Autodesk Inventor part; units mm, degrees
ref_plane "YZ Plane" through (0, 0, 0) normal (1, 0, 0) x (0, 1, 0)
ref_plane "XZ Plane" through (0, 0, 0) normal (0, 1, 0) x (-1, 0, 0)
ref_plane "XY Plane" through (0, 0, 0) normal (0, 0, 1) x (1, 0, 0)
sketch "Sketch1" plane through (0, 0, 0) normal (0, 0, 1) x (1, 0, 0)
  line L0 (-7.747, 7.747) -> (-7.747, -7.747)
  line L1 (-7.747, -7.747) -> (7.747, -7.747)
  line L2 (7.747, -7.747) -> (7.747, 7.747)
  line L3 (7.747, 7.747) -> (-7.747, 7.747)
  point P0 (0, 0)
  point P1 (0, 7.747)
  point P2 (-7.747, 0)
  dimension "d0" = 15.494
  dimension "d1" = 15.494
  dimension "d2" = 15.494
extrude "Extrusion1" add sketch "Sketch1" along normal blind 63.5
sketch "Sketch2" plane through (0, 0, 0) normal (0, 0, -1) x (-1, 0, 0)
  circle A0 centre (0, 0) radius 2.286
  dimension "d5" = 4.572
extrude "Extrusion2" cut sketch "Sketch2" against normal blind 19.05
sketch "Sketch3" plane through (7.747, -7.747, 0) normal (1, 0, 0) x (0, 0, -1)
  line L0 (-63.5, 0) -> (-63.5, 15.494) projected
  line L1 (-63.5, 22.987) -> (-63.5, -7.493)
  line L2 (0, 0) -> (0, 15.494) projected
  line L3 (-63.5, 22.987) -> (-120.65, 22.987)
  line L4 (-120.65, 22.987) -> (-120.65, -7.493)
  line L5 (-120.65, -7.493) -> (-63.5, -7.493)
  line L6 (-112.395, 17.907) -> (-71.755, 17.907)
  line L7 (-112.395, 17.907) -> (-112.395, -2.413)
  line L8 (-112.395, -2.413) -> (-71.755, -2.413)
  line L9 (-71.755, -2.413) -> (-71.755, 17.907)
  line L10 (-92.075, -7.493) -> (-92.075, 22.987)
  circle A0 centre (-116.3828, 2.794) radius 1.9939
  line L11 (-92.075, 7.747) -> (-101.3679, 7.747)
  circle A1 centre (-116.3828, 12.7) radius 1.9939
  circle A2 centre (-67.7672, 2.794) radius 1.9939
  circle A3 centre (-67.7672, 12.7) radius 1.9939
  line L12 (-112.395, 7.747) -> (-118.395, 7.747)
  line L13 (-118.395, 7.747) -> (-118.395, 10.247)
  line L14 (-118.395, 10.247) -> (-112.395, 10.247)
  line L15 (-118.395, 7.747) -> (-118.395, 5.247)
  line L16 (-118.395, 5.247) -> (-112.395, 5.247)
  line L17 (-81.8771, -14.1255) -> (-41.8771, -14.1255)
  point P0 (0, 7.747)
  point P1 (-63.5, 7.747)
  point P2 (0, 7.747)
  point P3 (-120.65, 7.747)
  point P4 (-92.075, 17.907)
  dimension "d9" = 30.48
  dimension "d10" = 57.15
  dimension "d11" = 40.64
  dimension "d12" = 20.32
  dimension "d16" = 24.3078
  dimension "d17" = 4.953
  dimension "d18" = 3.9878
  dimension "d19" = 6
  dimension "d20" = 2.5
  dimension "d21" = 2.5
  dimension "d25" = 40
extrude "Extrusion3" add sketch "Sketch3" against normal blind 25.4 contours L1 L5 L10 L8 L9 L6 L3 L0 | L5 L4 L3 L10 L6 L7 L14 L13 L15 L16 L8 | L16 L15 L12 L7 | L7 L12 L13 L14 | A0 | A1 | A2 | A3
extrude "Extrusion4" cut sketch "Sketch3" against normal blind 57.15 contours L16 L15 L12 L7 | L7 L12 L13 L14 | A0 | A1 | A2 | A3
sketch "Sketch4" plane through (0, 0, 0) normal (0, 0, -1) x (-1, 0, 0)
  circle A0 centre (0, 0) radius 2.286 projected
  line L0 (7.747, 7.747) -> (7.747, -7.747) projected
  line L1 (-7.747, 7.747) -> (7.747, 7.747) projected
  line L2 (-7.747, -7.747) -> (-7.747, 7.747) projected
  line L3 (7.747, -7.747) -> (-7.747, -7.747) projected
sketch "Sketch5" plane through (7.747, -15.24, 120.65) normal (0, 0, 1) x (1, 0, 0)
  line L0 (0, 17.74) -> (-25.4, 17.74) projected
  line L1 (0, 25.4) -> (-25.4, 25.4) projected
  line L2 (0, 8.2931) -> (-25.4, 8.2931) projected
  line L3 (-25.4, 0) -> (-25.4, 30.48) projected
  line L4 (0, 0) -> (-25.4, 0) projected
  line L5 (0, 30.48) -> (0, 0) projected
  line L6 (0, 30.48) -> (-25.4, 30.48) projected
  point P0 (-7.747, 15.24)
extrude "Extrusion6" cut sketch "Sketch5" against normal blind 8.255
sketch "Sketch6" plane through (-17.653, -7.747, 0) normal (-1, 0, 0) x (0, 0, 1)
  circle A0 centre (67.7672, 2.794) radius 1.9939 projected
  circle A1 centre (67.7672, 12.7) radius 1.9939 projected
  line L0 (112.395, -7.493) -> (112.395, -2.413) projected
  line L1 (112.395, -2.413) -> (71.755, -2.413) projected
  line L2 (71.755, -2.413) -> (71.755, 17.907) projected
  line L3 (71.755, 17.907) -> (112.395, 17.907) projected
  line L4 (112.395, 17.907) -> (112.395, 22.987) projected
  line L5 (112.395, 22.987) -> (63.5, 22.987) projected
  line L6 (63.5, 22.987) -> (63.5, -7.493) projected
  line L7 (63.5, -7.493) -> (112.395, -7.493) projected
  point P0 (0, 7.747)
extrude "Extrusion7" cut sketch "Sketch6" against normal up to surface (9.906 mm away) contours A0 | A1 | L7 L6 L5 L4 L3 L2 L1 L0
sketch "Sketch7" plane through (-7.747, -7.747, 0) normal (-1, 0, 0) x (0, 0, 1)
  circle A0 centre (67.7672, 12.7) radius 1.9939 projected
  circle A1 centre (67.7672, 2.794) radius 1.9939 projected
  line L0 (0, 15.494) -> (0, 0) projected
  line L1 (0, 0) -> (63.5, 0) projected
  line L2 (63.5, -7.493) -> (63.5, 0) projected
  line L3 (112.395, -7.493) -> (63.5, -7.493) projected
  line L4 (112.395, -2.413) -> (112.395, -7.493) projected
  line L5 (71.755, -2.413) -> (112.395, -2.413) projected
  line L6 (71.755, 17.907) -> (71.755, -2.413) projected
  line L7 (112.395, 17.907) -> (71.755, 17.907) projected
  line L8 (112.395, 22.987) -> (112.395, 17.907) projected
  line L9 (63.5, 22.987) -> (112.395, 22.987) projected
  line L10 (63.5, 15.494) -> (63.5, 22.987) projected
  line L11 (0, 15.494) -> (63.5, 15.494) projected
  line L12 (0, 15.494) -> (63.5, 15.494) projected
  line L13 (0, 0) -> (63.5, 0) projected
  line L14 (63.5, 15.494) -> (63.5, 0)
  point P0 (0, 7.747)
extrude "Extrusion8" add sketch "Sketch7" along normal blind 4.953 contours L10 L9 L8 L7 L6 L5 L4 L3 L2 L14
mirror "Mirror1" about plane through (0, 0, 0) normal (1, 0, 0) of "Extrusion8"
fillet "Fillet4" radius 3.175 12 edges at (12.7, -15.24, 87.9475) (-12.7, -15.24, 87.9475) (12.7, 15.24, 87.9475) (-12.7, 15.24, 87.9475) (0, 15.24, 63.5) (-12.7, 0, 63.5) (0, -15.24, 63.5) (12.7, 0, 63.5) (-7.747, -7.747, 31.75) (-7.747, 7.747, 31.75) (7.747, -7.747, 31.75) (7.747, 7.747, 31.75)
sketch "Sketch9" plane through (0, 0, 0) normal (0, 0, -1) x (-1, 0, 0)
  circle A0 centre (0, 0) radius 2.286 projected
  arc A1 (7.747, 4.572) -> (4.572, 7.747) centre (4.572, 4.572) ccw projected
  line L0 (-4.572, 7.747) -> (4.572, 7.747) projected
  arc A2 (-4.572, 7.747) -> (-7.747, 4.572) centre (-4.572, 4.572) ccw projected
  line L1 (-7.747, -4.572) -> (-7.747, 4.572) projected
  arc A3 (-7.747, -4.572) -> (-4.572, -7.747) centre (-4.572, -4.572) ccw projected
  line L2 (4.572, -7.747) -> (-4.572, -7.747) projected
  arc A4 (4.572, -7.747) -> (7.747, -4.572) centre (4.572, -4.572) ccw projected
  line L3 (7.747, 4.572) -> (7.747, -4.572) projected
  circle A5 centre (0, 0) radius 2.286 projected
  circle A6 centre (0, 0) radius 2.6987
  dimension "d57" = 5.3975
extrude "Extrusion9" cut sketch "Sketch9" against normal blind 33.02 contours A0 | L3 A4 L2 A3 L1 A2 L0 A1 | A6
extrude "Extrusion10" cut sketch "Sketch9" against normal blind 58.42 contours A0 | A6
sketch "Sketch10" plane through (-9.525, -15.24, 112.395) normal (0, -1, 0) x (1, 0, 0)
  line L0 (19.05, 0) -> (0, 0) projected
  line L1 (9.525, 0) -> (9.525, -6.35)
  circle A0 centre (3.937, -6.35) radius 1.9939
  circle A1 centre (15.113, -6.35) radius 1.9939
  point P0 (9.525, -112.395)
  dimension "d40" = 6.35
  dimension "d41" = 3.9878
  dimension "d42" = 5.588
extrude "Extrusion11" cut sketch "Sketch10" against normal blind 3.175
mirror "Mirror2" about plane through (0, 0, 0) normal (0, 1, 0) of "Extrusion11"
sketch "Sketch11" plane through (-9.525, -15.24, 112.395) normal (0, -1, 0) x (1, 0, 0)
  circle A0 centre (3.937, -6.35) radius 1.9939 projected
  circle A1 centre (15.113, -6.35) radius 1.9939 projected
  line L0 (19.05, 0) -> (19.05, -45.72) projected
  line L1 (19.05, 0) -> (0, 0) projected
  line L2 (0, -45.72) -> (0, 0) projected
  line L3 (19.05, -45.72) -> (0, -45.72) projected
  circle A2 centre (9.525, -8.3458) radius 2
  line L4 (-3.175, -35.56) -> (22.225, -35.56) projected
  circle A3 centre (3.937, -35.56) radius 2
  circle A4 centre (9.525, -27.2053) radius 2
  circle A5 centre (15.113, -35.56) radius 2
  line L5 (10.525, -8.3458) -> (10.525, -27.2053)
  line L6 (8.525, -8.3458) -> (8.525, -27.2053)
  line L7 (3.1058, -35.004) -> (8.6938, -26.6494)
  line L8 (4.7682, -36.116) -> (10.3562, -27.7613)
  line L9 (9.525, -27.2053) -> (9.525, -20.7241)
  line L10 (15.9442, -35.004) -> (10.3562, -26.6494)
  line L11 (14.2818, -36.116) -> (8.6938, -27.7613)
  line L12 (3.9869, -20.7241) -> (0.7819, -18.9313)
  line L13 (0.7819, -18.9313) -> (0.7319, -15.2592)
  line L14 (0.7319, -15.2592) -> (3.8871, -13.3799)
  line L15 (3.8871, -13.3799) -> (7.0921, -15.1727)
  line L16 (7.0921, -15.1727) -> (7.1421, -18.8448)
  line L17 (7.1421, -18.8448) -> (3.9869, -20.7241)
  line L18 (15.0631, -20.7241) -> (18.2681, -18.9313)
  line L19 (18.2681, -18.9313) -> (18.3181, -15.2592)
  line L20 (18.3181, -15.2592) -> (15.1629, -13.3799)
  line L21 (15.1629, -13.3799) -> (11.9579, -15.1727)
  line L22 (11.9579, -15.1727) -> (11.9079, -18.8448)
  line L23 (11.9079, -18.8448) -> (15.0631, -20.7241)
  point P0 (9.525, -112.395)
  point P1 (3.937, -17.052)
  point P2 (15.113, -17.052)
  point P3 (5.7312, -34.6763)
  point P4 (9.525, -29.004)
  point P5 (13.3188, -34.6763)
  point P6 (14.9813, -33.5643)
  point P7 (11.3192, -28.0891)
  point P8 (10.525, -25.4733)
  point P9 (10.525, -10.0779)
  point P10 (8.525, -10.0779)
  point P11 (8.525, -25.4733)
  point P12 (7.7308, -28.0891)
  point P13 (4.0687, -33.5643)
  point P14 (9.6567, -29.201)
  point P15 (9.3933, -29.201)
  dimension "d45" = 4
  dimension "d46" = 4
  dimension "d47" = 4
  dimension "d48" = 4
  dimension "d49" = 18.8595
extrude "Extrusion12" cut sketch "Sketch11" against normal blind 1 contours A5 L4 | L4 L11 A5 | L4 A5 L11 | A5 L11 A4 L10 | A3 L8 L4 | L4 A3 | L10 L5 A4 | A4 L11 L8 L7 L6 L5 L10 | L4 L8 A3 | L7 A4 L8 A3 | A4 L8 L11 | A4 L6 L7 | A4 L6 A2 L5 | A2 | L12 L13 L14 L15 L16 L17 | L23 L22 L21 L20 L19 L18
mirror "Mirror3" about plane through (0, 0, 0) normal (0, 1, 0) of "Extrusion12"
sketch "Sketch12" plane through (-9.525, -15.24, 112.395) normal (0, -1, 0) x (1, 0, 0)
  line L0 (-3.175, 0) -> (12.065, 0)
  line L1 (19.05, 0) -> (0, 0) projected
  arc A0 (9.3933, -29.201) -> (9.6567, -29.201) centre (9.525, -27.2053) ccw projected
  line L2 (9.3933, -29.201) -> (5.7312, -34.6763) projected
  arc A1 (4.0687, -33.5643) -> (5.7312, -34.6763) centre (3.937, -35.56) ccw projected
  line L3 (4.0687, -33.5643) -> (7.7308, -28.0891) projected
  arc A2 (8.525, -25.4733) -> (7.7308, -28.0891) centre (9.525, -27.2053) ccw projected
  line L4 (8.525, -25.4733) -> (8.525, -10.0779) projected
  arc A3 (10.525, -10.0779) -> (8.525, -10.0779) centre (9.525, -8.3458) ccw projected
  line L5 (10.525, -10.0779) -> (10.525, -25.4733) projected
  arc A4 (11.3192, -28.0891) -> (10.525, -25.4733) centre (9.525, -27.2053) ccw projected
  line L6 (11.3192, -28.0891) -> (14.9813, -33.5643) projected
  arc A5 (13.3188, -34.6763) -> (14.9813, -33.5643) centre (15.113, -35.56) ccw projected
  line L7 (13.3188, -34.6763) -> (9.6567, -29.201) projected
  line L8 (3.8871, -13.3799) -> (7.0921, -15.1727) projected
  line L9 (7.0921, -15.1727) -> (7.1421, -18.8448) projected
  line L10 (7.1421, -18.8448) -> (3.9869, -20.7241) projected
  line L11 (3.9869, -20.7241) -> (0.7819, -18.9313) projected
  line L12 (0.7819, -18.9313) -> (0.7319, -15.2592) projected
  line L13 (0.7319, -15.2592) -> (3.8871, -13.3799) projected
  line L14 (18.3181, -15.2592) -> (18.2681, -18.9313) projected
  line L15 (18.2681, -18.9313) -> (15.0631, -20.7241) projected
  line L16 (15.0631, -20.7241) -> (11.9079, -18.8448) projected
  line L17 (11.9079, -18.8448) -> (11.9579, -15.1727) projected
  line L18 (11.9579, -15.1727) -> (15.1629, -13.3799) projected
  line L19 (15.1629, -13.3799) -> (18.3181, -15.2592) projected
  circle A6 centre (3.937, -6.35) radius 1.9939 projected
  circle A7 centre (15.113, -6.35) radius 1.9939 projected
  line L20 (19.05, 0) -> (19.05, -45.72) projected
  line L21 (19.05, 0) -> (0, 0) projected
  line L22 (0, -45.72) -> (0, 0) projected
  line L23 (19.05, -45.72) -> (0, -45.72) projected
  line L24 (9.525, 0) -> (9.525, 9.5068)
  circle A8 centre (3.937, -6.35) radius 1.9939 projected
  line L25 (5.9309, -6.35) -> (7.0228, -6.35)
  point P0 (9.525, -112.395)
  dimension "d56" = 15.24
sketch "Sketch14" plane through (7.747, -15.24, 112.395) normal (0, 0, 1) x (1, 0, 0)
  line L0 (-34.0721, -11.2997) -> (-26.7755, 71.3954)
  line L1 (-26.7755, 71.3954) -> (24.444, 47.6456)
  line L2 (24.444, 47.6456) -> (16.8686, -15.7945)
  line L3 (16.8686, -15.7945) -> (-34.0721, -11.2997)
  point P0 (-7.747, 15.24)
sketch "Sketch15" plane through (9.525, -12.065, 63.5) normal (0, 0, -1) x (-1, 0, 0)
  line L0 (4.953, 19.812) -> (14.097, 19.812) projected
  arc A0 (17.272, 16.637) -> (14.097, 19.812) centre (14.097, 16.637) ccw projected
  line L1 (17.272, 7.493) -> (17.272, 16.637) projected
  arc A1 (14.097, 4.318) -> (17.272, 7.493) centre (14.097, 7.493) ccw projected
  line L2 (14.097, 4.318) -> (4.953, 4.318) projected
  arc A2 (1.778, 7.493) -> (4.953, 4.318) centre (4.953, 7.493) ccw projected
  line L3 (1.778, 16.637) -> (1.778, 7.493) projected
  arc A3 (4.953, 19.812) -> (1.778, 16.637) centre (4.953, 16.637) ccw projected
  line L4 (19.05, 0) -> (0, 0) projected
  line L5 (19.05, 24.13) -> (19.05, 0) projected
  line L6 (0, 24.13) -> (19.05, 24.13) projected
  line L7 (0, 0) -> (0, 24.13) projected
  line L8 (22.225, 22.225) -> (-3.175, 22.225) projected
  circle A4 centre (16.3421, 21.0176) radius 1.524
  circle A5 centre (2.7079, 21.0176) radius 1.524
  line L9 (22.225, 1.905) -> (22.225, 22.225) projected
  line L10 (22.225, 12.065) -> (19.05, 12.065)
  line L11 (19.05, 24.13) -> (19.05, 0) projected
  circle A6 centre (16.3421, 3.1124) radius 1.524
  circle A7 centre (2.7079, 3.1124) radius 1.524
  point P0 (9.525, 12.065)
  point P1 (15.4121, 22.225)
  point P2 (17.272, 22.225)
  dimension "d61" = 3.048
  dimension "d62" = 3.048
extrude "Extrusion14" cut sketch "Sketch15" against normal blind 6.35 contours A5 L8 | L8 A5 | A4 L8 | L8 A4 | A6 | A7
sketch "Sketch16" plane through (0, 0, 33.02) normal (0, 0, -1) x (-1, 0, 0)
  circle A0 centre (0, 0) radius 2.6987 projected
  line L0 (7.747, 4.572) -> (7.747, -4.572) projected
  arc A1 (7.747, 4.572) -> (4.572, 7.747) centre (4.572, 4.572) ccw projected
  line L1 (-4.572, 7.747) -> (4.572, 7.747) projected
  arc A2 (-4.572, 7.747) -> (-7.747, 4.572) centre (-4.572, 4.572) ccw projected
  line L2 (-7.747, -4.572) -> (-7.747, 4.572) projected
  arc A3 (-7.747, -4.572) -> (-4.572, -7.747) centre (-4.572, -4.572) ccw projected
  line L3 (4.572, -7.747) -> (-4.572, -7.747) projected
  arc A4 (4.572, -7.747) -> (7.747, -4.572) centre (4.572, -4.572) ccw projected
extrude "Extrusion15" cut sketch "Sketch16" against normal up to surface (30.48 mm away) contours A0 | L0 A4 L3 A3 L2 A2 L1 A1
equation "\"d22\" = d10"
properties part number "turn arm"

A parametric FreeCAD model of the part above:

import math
import FreeCAD as App
import Part
import Sketcher
Q = App.Units.Quantity


def edges_at(feature, points):
    """Names of the edges that pass closest to the given points."""
    edges = feature.Shape.Edges
    near = lambda p: min(range(len(edges)), key=lambda i: edges[i].distToShape(Part.Vertex(*p))[0])
    return sorted({f"Edge{near(p) + 1}" for p in points})

doc = App.newDocument("Part")
body = doc.addObject("PartDesign::Body", "Body")

sketch1 = body.newObject("Sketcher::SketchObject", "Sketch")
sketch1.AttachmentSupport = (doc.getObject("XY_Plane"), [""])
sketch1.MapMode = "FlatFace"
sketch1.addGeometry(Part.LineSegment(App.Vector(7.747, 7.747, 0), App.Vector(-7.747, 7.747, 0)), False)
sketch1.addGeometry(Part.LineSegment(App.Vector(-7.747, 7.747, 0), App.Vector(-7.747, -7.747, 0)), False)
sketch1.addGeometry(Part.LineSegment(App.Vector(-7.747, -7.747, 0), App.Vector(7.747, -7.747, 0)), False)
sketch1.addGeometry(Part.LineSegment(App.Vector(7.747, -7.747, 0), App.Vector(7.747, 7.747, 0)), False)
sketch1.addConstraint(Sketcher.Constraint("Coincident", 0, 2, 1, 1))
sketch1.addConstraint(Sketcher.Constraint("Coincident", 1, 2, 2, 1))
sketch1.addConstraint(Sketcher.Constraint("Coincident", 2, 2, 3, 1))
sketch1.addConstraint(Sketcher.Constraint("Coincident", 3, 2, 0, 1))
sketch1.addConstraint(Sketcher.Constraint("Horizontal", 0))
sketch1.addConstraint(Sketcher.Constraint("Vertical", 1))
sketch1.addConstraint(Sketcher.Constraint("Horizontal", 2))
sketch1.addConstraint(Sketcher.Constraint("Vertical", 3))
sketch1.addConstraint(Sketcher.Constraint("Symmetric", 0, 2, 2, 2, -1, 1))
sketch1.addConstraint(Sketcher.Constraint("Equal", 2, 1))
sketch1.addConstraint(Sketcher.Constraint("DistanceX", 0, 2, 0, 1, Q("0.61 in")))
pad1 = body.newObject("PartDesign::Pad", "Pad")
pad1.Profile = sketch1
pad1.Length = Q("2.5 in")

sketch2 = body.newObject("Sketcher::SketchObject", "Sketch001")
sketch2.AttachmentSupport = (doc.getObject("XY_Plane"), [""])
sketch2.MapMode = "FlatFace"
sketch2.addGeometry(Part.Circle(App.Vector(0, 0, 0), App.Vector(0, 0, 1), 2.286), False)
sketch2.addConstraint(Sketcher.Constraint("Coincident", 0, 3, -1, 1))
sketch2.addConstraint(Sketcher.Constraint("Diameter", 0, Q("0.18 in")))
pocket1 = body.newObject("PartDesign::Pocket", "Pocket")
pocket1.Profile = sketch2
pocket1.Length = Q("0.75 in")
pocket1.Reversed = True

sketch3 = body.newObject("Sketcher::SketchObject", "Sketch002")
sketch3.AttachmentSupport = (doc.getObject("YZ_Plane"), [""])
sketch3.MapMode = "FlatFace"
sketch3.AttachmentOffset = App.Placement(App.Vector(0, 0, 0.305 * 25.4), App.Rotation())
sketch3.addGeometry(Part.LineSegment(App.Vector(-15.24, 63.5, 0), App.Vector(15.24, 63.5, 0)), False)
sketch3.addGeometry(Part.LineSegment(App.Vector(15.24, 63.5, 0), App.Vector(15.24, 120.65, 0)), False)
sketch3.addGeometry(Part.LineSegment(App.Vector(15.24, 120.65, 0), App.Vector(-15.24, 120.65, 0)), False)
sketch3.addGeometry(Part.LineSegment(App.Vector(-15.24, 120.65, 0), App.Vector(-15.24, 63.5, 0)), False)
sketch3.addGeometry(Part.LineSegment(App.Vector(-10.16, 71.755, 0), App.Vector(-10.16, 112.395, 0)), False)
sketch3.addGeometry(Part.LineSegment(App.Vector(-10.16, 112.395, 0), App.Vector(10.16, 112.395, 0)), False)
sketch3.addGeometry(Part.LineSegment(App.Vector(10.16, 112.395, 0), App.Vector(10.16, 71.755, 0)), False)
sketch3.addGeometry(Part.LineSegment(App.Vector(10.16, 71.755, 0), App.Vector(-10.16, 71.755, 0)), False)
sketch3.addConstraint(Sketcher.Constraint("Coincident", 0, 2, 1, 1))
sketch3.addConstraint(Sketcher.Constraint("Coincident", 1, 2, 2, 1))
sketch3.addConstraint(Sketcher.Constraint("Coincident", 2, 2, 3, 1))
sketch3.addConstraint(Sketcher.Constraint("Coincident", 3, 2, 0, 1))
sketch3.addConstraint(Sketcher.Constraint("Coincident", 4, 2, 5, 1))
sketch3.addConstraint(Sketcher.Constraint("Coincident", 5, 2, 6, 1))
sketch3.addConstraint(Sketcher.Constraint("Coincident", 6, 2, 7, 1))
sketch3.addConstraint(Sketcher.Constraint("Coincident", 7, 2, 4, 1))
sketch3.addConstraint(Sketcher.Constraint("Horizontal", 0))
sketch3.addConstraint(Sketcher.Constraint("Vertical", 1))
sketch3.addConstraint(Sketcher.Constraint("Horizontal", 2))
sketch3.addConstraint(Sketcher.Constraint("Vertical", 3))
sketch3.addConstraint(Sketcher.Constraint("Vertical", 4))
sketch3.addConstraint(Sketcher.Constraint("Horizontal", 5))
sketch3.addConstraint(Sketcher.Constraint("Vertical", 6))
sketch3.addConstraint(Sketcher.Constraint("Horizontal", 7))
sketch3.addConstraint(Sketcher.Constraint("DistanceX", 0, 1, 0, 2, Q("1.2 in")))
sketch3.addConstraint(Sketcher.Constraint("DistanceX", 5, 1, 5, 2, Q("0.8 in")))
sketch3.addConstraint(Sketcher.Constraint("DistanceY", 4, 1, 4, 2, Q("1.6 in")))
sketch3.addConstraint(Sketcher.Constraint("DistanceY", 1, 1, 1, 2, Q("2.25 in")))
sketch3.addConstraint(Sketcher.Constraint("DistanceX", 4, 2, 1, 2, Q("1 in")))
sketch3.addConstraint(Sketcher.Constraint("DistanceX", -1, 1, 0, 2, Q("0.6 in")))
sketch3.addConstraint(Sketcher.Constraint("DistanceY", -1, 1, 0, 2, Q("2.5 in")))
sketch3.addConstraint(Sketcher.Constraint("DistanceY", -1, 1, 4, 2, Q("4.425 in")))
pad2 = body.newObject("PartDesign::Pad", "Pad001")
pad2.Profile = sketch3
pad2.Length = Q("1 in")
pad2.Reversed = True

sketch4 = body.newObject("Sketcher::SketchObject", "Sketch003")
sketch4.AttachmentSupport = (doc.getObject("YZ_Plane"), [""])
sketch4.MapMode = "FlatFace"
sketch4.AttachmentOffset = App.Placement(App.Vector(0, 0, 0.305 * 25.4), App.Rotation())
sketch4.addGeometry(Part.LineSegment(App.Vector(-2.5, 118.395, 0), App.Vector(-2.5, 112.395, 0)), False)
sketch4.addGeometry(Part.LineSegment(App.Vector(-2.5, 112.395, 0), App.Vector(2.5, 112.395, 0)), False)
sketch4.addGeometry(Part.LineSegment(App.Vector(2.5, 112.395, 0), App.Vector(2.5, 118.395, 0)), False)
sketch4.addGeometry(Part.LineSegment(App.Vector(2.5, 118.395, 0), App.Vector(-2.5, 118.395, 0)), False)
sketch4.addGeometry(Part.Circle(App.Vector(-4.953, 116.3828, 0), App.Vector(0, 0, 1), 1.9939), False)
sketch4.addGeometry(Part.Circle(App.Vector(4.953, 116.3828, 0), App.Vector(0, 0, 1), 1.9939), False)
sketch4.addGeometry(Part.Circle(App.Vector(-4.953, 67.7672, 0), App.Vector(0, 0, 1), 1.9939), False)
sketch4.addGeometry(Part.Circle(App.Vector(4.953, 67.7672, 0), App.Vector(0, 0, 1), 1.9939), False)
sketch4.addConstraint(Sketcher.Constraint("Coincident", 0, 2, 1, 1))
sketch4.addConstraint(Sketcher.Constraint("Coincident", 1, 2, 2, 1))
sketch4.addConstraint(Sketcher.Constraint("Coincident", 2, 2, 3, 1))
sketch4.addConstraint(Sketcher.Constraint("Coincident", 3, 2, 0, 1))
sketch4.addConstraint(Sketcher.Constraint("Vertical", 0))
sketch4.addConstraint(Sketcher.Constraint("Horizontal", 1))
sketch4.addConstraint(Sketcher.Constraint("Vertical", 2))
sketch4.addConstraint(Sketcher.Constraint("Horizontal", 3))
sketch4.addConstraint(Sketcher.Constraint("Equal", 4, 5))
sketch4.addConstraint(Sketcher.Constraint("Equal", 5, 6))
sketch4.addConstraint(Sketcher.Constraint("Equal", 6, 7))
sketch4.addConstraint(Sketcher.Constraint("Symmetric", 4, 3, 5, 3, -2))
sketch4.addConstraint(Sketcher.Constraint("Symmetric", 6, 3, 7, 3, -2))
sketch4.addConstraint(Sketcher.Constraint("Vertical", 4, 3, 6, 3))
sketch4.addConstraint(Sketcher.Constraint("Diameter", 4, Q("0.157 in")))
sketch4.addConstraint(Sketcher.Constraint("DistanceX", 4, 3, -1, 1, Q("0.195 in")))
sketch4.addConstraint(Sketcher.Constraint("DistanceY", 0, 2, 4, 3, Q("0.157 in")))
sketch4.addConstraint(Sketcher.Constraint("DistanceY", 0, 2, 0, 1, Q("6 mm")))
sketch4.addConstraint(Sketcher.Constraint("DistanceX", 0, 2, -1, 1, Q("2.5 mm")))
sketch4.addConstraint(Sketcher.Constraint("DistanceX", -1, 1, 1, 2, Q("2.5 mm")))
sketch4.addConstraint(Sketcher.Constraint("DistanceY", -1, 1, 4, 3, Q("4.582 in")))
sketch4.addConstraint(Sketcher.Constraint("DistanceY", -1, 1, 6, 3, Q("2.668 in")))
pocket2 = body.newObject("PartDesign::Pocket", "Pocket001")
pocket2.Profile = sketch4
pocket2.Length = Q("2.25 in")

sketch5 = body.newObject("Sketcher::SketchObject", "Sketch004")
sketch5.AttachmentSupport = (doc.getObject("XY_Plane"), [""])
sketch5.MapMode = "FlatFace"
sketch5.AttachmentOffset = App.Placement(App.Vector(0, 0, 4.75 * 25.4), App.Rotation())
sketch5.addGeometry(Part.LineSegment(App.Vector(7.747, 15.24, 0), App.Vector(-17.653, 15.24, 0)), False)
sketch5.addGeometry(Part.LineSegment(App.Vector(-17.653, 15.24, 0), App.Vector(-17.653, -15.24, 0)), False)
sketch5.addGeometry(Part.LineSegment(App.Vector(-17.653, -15.24, 0), App.Vector(7.747, -15.24, 0)), False)
sketch5.addGeometry(Part.LineSegment(App.Vector(7.747, -15.24, 0), App.Vector(7.747, 15.24, 0)), False)
sketch5.addConstraint(Sketcher.Constraint("Coincident", 0, 2, 1, 1))
sketch5.addConstraint(Sketcher.Constraint("Coincident", 1, 2, 2, 1))
sketch5.addConstraint(Sketcher.Constraint("Coincident", 2, 2, 3, 1))
sketch5.addConstraint(Sketcher.Constraint("Coincident", 3, 2, 0, 1))
sketch5.addConstraint(Sketcher.Constraint("Horizontal", 0))
sketch5.addConstraint(Sketcher.Constraint("Vertical", 1))
sketch5.addConstraint(Sketcher.Constraint("Horizontal", 2))
sketch5.addConstraint(Sketcher.Constraint("Vertical", 3))
sketch5.addConstraint(Sketcher.Constraint("DistanceX", 0, 2, 0, 1, Q("1 in")))
sketch5.addConstraint(Sketcher.Constraint("DistanceY", 1, 2, 1, 1, Q("1.2 in")))
sketch5.addConstraint(Sketcher.Constraint("DistanceY", -1, 1, 0, 2, Q("0.6 in")))
sketch5.addConstraint(Sketcher.Constraint("DistanceX", 0, 2, -1, 1, Q("0.695 in")))
pocket3 = body.newObject("PartDesign::Pocket", "Pocket002")
pocket3.Profile = sketch5
pocket3.Length = Q("0.325 in")

sketch6 = body.newObject("Sketcher::SketchObject", "Sketch005")
sketch6.AttachmentSupport = (doc.getObject("YZ_Plane"), [""])
sketch6.MapMode = "FlatFace"
sketch6.AttachmentOffset = App.Placement(App.Vector(0, 0, -0.695 * 25.4), App.Rotation())
sketch6.addGeometry(Part.LineSegment(App.Vector(-15.24, 63.5, 0), App.Vector(-15.24, 112.395, 0)), False)
sketch6.addGeometry(Part.LineSegment(App.Vector(-15.24, 112.395, 0), App.Vector(-10.16, 112.395, 0)), False)
sketch6.addGeometry(Part.LineSegment(App.Vector(-10.16, 112.395, 0), App.Vector(-10.16, 71.755, 0)), False)
sketch6.addGeometry(Part.LineSegment(App.Vector(-10.16, 71.755, 0), App.Vector(10.16, 71.755, 0)), False)
sketch6.addGeometry(Part.LineSegment(App.Vector(10.16, 71.755, 0), App.Vector(10.16, 112.395, 0)), False)
sketch6.addGeometry(Part.LineSegment(App.Vector(10.16, 112.395, 0), App.Vector(15.24, 112.395, 0)), False)
sketch6.addGeometry(Part.LineSegment(App.Vector(15.24, 112.395, 0), App.Vector(15.24, 63.5, 0)), False)
sketch6.addGeometry(Part.LineSegment(App.Vector(15.24, 63.5, 0), App.Vector(-15.24, 63.5, 0)), False)
sketch6.addConstraint(Sketcher.Constraint("Coincident", 0, 2, 1, 1))
sketch6.addConstraint(Sketcher.Constraint("Coincident", 1, 2, 2, 1))
sketch6.addConstraint(Sketcher.Constraint("Coincident", 2, 2, 3, 1))
sketch6.addConstraint(Sketcher.Constraint("Coincident", 3, 2, 4, 1))
sketch6.addConstraint(Sketcher.Constraint("Coincident", 4, 2, 5, 1))
sketch6.addConstraint(Sketcher.Constraint("Coincident", 5, 2, 6, 1))
sketch6.addConstraint(Sketcher.Constraint("Coincident", 6, 2, 7, 1))
sketch6.addConstraint(Sketcher.Constraint("Coincident", 7, 2, 0, 1))
sketch6.addConstraint(Sketcher.Constraint("Vertical", 0))
sketch6.addConstraint(Sketcher.Constraint("Horizontal", 1))
sketch6.addConstraint(Sketcher.Constraint("Vertical", 2))
sketch6.addConstraint(Sketcher.Constraint("Horizontal", 3))
sketch6.addConstraint(Sketcher.Constraint("Vertical", 4))
sketch6.addConstraint(Sketcher.Constraint("Horizontal", 5))
sketch6.addConstraint(Sketcher.Constraint("Vertical", 6))
sketch6.addConstraint(Sketcher.Constraint("Horizontal", 7))
sketch6.addConstraint(Sketcher.Constraint("Symmetric", 1, 2, 4, 2, -2))
sketch6.addConstraint(Sketcher.Constraint("Equal", 1, 5))
sketch6.addConstraint(Sketcher.Constraint("DistanceX", 1, 1, 1, 2, Q("0.2 in")))
sketch6.addConstraint(Sketcher.Constraint("DistanceX", 3, 1, 3, 2, Q("0.8 in")))
sketch6.addConstraint(Sketcher.Constraint("DistanceY", 2, 2, 2, 1, Q("1.6 in")))
sketch6.addConstraint(Sketcher.Constraint("DistanceY", -1, 1, 6, 2, Q("2.5 in")))
sketch6.addConstraint(Sketcher.Constraint("DistanceY", 0, 1, 0, 2, Q("1.925 in")))
pocket4 = body.newObject("PartDesign::Pocket", "Pocket003")
pocket4.Profile = sketch6
pocket4.Length = Q("0.39 in")
pocket4.Reversed = True

sketch7 = body.newObject("Sketcher::SketchObject", "Sketch006")
sketch7.AttachmentSupport = (doc.getObject("YZ_Plane"), [""])
sketch7.MapMode = "FlatFace"
sketch7.AttachmentOffset = App.Placement(App.Vector(0, 0, -0.305 * 25.4), App.Rotation())
sketch7.addGeometry(Part.LineSegment(App.Vector(15.24, 63.5, 0), App.Vector(-15.24, 63.5, 0)), False)
sketch7.addGeometry(Part.LineSegment(App.Vector(-15.24, 63.5, 0), App.Vector(-15.24, 112.395, 0)), False)
sketch7.addGeometry(Part.LineSegment(App.Vector(-15.24, 112.395, 0), App.Vector(-10.16, 112.395, 0)), False)
sketch7.addGeometry(Part.LineSegment(App.Vector(-10.16, 112.395, 0), App.Vector(-10.16, 71.755, 0)), False)
sketch7.addGeometry(Part.LineSegment(App.Vector(-10.16, 71.755, 0), App.Vector(10.16, 71.755, 0)), False)
sketch7.addGeometry(Part.LineSegment(App.Vector(10.16, 71.755, 0), App.Vector(10.16, 112.395, 0)), False)
sketch7.addGeometry(Part.LineSegment(App.Vector(10.16, 112.395, 0), App.Vector(15.24, 112.395, 0)), False)
sketch7.addGeometry(Part.LineSegment(App.Vector(15.24, 112.395, 0), App.Vector(15.24, 63.5, 0)), False)
sketch7.addGeometry(Part.Circle(App.Vector(-4.953, 67.7672, 0), App.Vector(0, 0, 1), 1.9939), False)
sketch7.addGeometry(Part.Circle(App.Vector(4.953, 67.7672, 0), App.Vector(0, 0, 1), 1.9939), False)
sketch7.addConstraint(Sketcher.Constraint("Coincident", 0, 2, 1, 1))
sketch7.addConstraint(Sketcher.Constraint("Coincident", 1, 2, 2, 1))
sketch7.addConstraint(Sketcher.Constraint("Coincident", 2, 2, 3, 1))
sketch7.addConstraint(Sketcher.Constraint("Coincident", 3, 2, 4, 1))
sketch7.addConstraint(Sketcher.Constraint("Coincident", 4, 2, 5, 1))
sketch7.addConstraint(Sketcher.Constraint("Coincident", 5, 2, 6, 1))
sketch7.addConstraint(Sketcher.Constraint("Coincident", 6, 2, 7, 1))
sketch7.addConstraint(Sketcher.Constraint("Coincident", 7, 2, 0, 1))
sketch7.addConstraint(Sketcher.Constraint("Horizontal", 0))
sketch7.addConstraint(Sketcher.Constraint("Vertical", 1))
sketch7.addConstraint(Sketcher.Constraint("Horizontal", 2))
sketch7.addConstraint(Sketcher.Constraint("Vertical", 3))
sketch7.addConstraint(Sketcher.Constraint("Horizontal", 4))
sketch7.addConstraint(Sketcher.Constraint("Vertical", 5))
sketch7.addConstraint(Sketcher.Constraint("Horizontal", 6))
sketch7.addConstraint(Sketcher.Constraint("Vertical", 7))
sketch7.addConstraint(Sketcher.Constraint("Equal", 8, 9))
sketch7.addConstraint(Sketcher.Constraint("Symmetric", 8, 3, 9, 3, -2))
sketch7.addConstraint(Sketcher.Constraint("Symmetric", 2, 2, 5, 2, -2))
sketch7.addConstraint(Sketcher.Constraint("Equal", 2, 6))
sketch7.addConstraint(Sketcher.Constraint("Diameter", 8, Q("0.157 in")))
sketch7.addConstraint(Sketcher.Constraint("DistanceX", 0, 2, 0, 1, Q("1.2 in")))
sketch7.addConstraint(Sketcher.Constraint("DistanceX", 2, 1, 2, 2, Q("0.2 in")))
sketch7.addConstraint(Sketcher.Constraint("DistanceY", 3, 2, 3, 1, Q("1.6 in")))
sketch7.addConstraint(Sketcher.Constraint("DistanceY", -1, 1, 0, 2, Q("2.5 in")))
sketch7.addConstraint(Sketcher.Constraint("DistanceY", 1, 1, 1, 2, Q("1.925 in")))
sketch7.addConstraint(Sketcher.Constraint("DistanceX", 8, 3, 9, 3, Q("0.39 in")))
sketch7.addConstraint(Sketcher.Constraint("DistanceY", -1, 1, 8, 3, Q("2.668 in")))
pad3 = body.newObject("PartDesign::Pad", "Pad002")
pad3.Profile = sketch7
pad3.Length = Q("0.195 in")
pad3.Reversed = True
doc.recompute()

mirrored = body.newObject("PartDesign::Mirrored", "Mirrored")
mirrored.Originals = [pad3]
mirrored.MirrorPlane = (doc.getObject("YZ_Plane"), [""])
body.Tip = mirrored
doc.recompute()

fillet = body.newObject("PartDesign::Fillet", "Fillet")
fillet.Base = (mirrored, edges_at(mirrored, [
    (12.7, -15.24, 87.948),
    (-12.7, -15.24, 87.948),
    (12.7, 15.24, 87.948),
    (-12.7, 15.24, 87.948),
    (0, 15.24, 63.5),
    (-12.7, 0, 63.5),
    (0, -15.24, 63.5),
    (12.7, 0, 63.5),
    (-7.747, -7.747, 31.75),
    (-7.747, 7.747, 31.75),
    (7.747, -7.747, 31.75),
    (7.747, 7.747, 31.75),
]))
fillet.Radius = Q("0.125 in")

sketch8 = body.newObject("Sketcher::SketchObject", "Sketch007")
sketch8.AttachmentSupport = (doc.getObject("XY_Plane"), [""])
sketch8.MapMode = "FlatFace"
sketch8.addGeometry(Part.LineSegment(App.Vector(-7.747, -4.572, 0), App.Vector(-7.747, 4.572, 0)), False)
sketch8.addGeometry(Part.ArcOfCircle(Part.Circle(App.Vector(-4.572, 4.572, 0), App.Vector(0, 0, 1), 3.175), math.radians(90), math.radians(180)), False)
sketch8.addGeometry(Part.LineSegment(App.Vector(-4.572, 7.747, 0), App.Vector(4.572, 7.747, 0)), False)
sketch8.addGeometry(Part.ArcOfCircle(Part.Circle(App.Vector(4.572, 4.572, 0), App.Vector(0, 0, 1), 3.175), math.radians(0), math.radians(90)), False)
sketch8.addGeometry(Part.LineSegment(App.Vector(7.747, 4.572, 0), App.Vector(7.747, -4.572, 0)), False)
sketch8.addGeometry(Part.ArcOfCircle(Part.Circle(App.Vector(4.572, -4.572, 0), App.Vector(0, 0, 1), 3.175), math.radians(-90), math.radians(0)), False)
sketch8.addGeometry(Part.LineSegment(App.Vector(4.572, -7.747, 0), App.Vector(-4.572, -7.747, 0)), False)
sketch8.addGeometry(Part.ArcOfCircle(Part.Circle(App.Vector(-4.572, -4.572, 0), App.Vector(0, 0, 1), 3.175), math.radians(180), math.radians(270)), False)
sketch8.addConstraint(Sketcher.Constraint("Tangent", 0, 2, 1, 2))
sketch8.addConstraint(Sketcher.Constraint("Tangent", 1, 1, 2, 1))
sketch8.addConstraint(Sketcher.Constraint("Tangent", 2, 2, 3, 2))
sketch8.addConstraint(Sketcher.Constraint("Tangent", 3, 1, 4, 1))
sketch8.addConstraint(Sketcher.Constraint("Tangent", 4, 2, 5, 2))
sketch8.addConstraint(Sketcher.Constraint("Tangent", 5, 1, 6, 1))
sketch8.addConstraint(Sketcher.Constraint("Tangent", 6, 2, 7, 2))
sketch8.addConstraint(Sketcher.Constraint("Tangent", 7, 1, 0, 1))
sketch8.addConstraint(Sketcher.Constraint("Vertical", 0))
sketch8.addConstraint(Sketcher.Constraint("Horizontal", 2))
sketch8.addConstraint(Sketcher.Constraint("Vertical", 4))
sketch8.addConstraint(Sketcher.Constraint("Horizontal", 6))
sketch8.addConstraint(Sketcher.Constraint("Equal", 1, 3))
sketch8.addConstraint(Sketcher.Constraint("Equal", 3, 5))
sketch8.addConstraint(Sketcher.Constraint("Equal", 5, 7))
sketch8.addConstraint(Sketcher.Constraint("Symmetric", 1, 3, 5, 3, -1, 1))
sketch8.addConstraint(Sketcher.Constraint("Equal", 6, 0))
sketch8.addConstraint(Sketcher.Constraint("Radius", 1, Q("0.125 in")))
sketch8.addConstraint(Sketcher.Constraint("DistanceX", 2, 1, 2, 2, Q("0.36 in")))
pocket5 = body.newObject("PartDesign::Pocket", "Pocket004")
pocket5.Profile = sketch8
pocket5.Length = Q("1.3 in")
pocket5.Reversed = True

sketch9 = body.newObject("Sketcher::SketchObject", "Sketch008")
sketch9.AttachmentSupport = (doc.getObject("XY_Plane"), [""])
sketch9.MapMode = "FlatFace"
sketch9.addGeometry(Part.Circle(App.Vector(0, 0, 0), App.Vector(0, 0, 1), 2.6987), False)
sketch9.addConstraint(Sketcher.Constraint("Coincident", 0, 3, -1, 1))
sketch9.addConstraint(Sketcher.Constraint("Diameter", 0, Q("0.2125 in")))
pocket6 = body.newObject("PartDesign::Pocket", "Pocket005")
pocket6.Profile = sketch9
pocket6.Length = Q("2.3 in")
pocket6.Reversed = True

sketch10 = body.newObject("Sketcher::SketchObject", "Sketch009")
sketch10.AttachmentSupport = (doc.getObject("XZ_Plane"), [""])
sketch10.MapMode = "FlatFace"
sketch10.AttachmentOffset = App.Placement(App.Vector(0, 0, 0.6 * 25.4), App.Rotation())
sketch10.addGeometry(Part.Circle(App.Vector(-5.588, 106.045, 0), App.Vector(0, 0, 1), 1.9939), False)
sketch10.addGeometry(Part.Circle(App.Vector(5.588, 106.045, 0), App.Vector(0, 0, 1), 1.9939), False)
sketch10.addConstraint(Sketcher.Constraint("Equal", 0, 1))
sketch10.addConstraint(Sketcher.Constraint("Symmetric", 0, 3, 1, 3, -2))
sketch10.addConstraint(Sketcher.Constraint("Diameter", 0, Q("0.157 in")))
sketch10.addConstraint(Sketcher.Constraint("DistanceX", 0, 3, -1, 1, Q("0.22 in")))
sketch10.addConstraint(Sketcher.Constraint("DistanceY", -1, 1, 0, 3, Q("4.175 in")))
pocket7 = body.newObject("PartDesign::Pocket", "Pocket006")
pocket7.Profile = sketch10
pocket7.Length = Q("0.125 in")
doc.recompute()

mirrored2 = body.newObject("PartDesign::Mirrored", "Mirrored001")
mirrored2.Originals = [pocket7]
mirrored2.MirrorPlane = (doc.getObject("XZ_Plane"), [""])
body.Tip = mirrored2

sketch11 = body.newObject("Sketcher::SketchObject", "Sketch010")
sketch11.AttachmentSupport = (doc.getObject("XZ_Plane"), [""])
sketch11.MapMode = "FlatFace"
sketch11.AttachmentOffset = App.Placement(App.Vector(0, 0, 0.6 * 25.4), App.Rotation())
sketch11.addGeometry(Part.LineSegment(App.Vector(5.45628, 78.830658, 0), App.Vector(1.794137, 84.305916, 0)), False)
sketch11.addGeometry(Part.ArcOfCircle(Part.Circle(App.Vector(0, 85.1897, 0), App.Vector(0, 0, 1), 2), math.radians(-26.224645), math.radians(60)), False)
sketch11.addGeometry(Part.LineSegment(App.Vector(1, 86.921751, 0), App.Vector(1, 102.317149, 0)), False)
sketch11.addGeometry(Part.ArcOfCircle(Part.Circle(App.Vector(0, 104.0492, 0), App.Vector(0, 0, 1), 2), math.radians(-60), math.radians(240)), False)
sketch11.addGeometry(Part.LineSegment(App.Vector(-1, 102.317149, 0), App.Vector(-1, 86.921751, 0)), False)
sketch11.addGeometry(Part.ArcOfCircle(Part.Circle(App.Vector(0, 85.1897, 0), App.Vector(0, 0, 1), 2), math.radians(120), math.radians(206.224645)), False)
sketch11.addGeometry(Part.LineSegment(App.Vector(-1.794137, 84.305916, 0), App.Vector(-5.45628, 78.830658, 0)), False)
sketch11.addGeometry(Part.ArcOfCircle(Part.Circle(App.Vector(-5.588, 76.835, 0), App.Vector(0, 0, 1), 2), math.radians(86.22378), math.radians(386.223123)), False)
sketch11.addGeometry(Part.LineSegment(App.Vector(-3.79384, 77.718736, 0), App.Vector(-0.131709, 83.194041, 0)), False)
sketch11.addGeometry(Part.ArcOfCircle(Part.Circle(App.Vector(0, 85.1897, 0), App.Vector(0, 0, 1), 2), math.radians(-93.775903), math.radians(-86.224097)), False)
sketch11.addGeometry(Part.LineSegment(App.Vector(0.131709, 83.194041, 0), App.Vector(3.79384, 77.718736, 0)), False)
sketch11.addGeometry(Part.ArcOfCircle(Part.Circle(App.Vector(5.588, 76.835, 0), App.Vector(0, 0, 1), 2), math.radians(153.776877), math.radians(453.77622)), False)
sketch11.addGeometry(Part.LineSegment(App.Vector(-8.7431, 93.4637, 0), App.Vector(-5.5381, 91.6709, 0)), False)
sketch11.addGeometry(Part.LineSegment(App.Vector(-5.5381, 91.6709, 0), App.Vector(-2.3829, 93.5502, 0)), False)
sketch11.addGeometry(Part.LineSegment(App.Vector(-2.3829, 93.5502, 0), App.Vector(-2.4329, 97.2223, 0)), False)
sketch11.addGeometry(Part.LineSegment(App.Vector(-2.4329, 97.2223, 0), App.Vector(-5.6379, 99.0151, 0)), False)
sketch11.addGeometry(Part.LineSegment(App.Vector(-5.6379, 99.0151, 0), App.Vector(-8.7931, 97.1358, 0)), False)
sketch11.addGeometry(Part.LineSegment(App.Vector(-8.7931, 97.1358, 0), App.Vector(-8.7431, 93.4637, 0)), False)
sketch11.addGeometry(Part.LineSegment(App.Vector(2.3829, 93.5502, 0), App.Vector(5.5381, 91.6709, 0)), False)
sketch11.addGeometry(Part.LineSegment(App.Vector(5.5381, 91.6709, 0), App.Vector(8.7431, 93.4637, 0)), False)
sketch11.addGeometry(Part.LineSegment(App.Vector(8.7431, 93.4637, 0), App.Vector(8.7931, 97.1358, 0)), False)
sketch11.addGeometry(Part.LineSegment(App.Vector(8.7931, 97.1358, 0), App.Vector(5.6379, 99.0151, 0)), False)
sketch11.addGeometry(Part.LineSegment(App.Vector(5.6379, 99.0151, 0), App.Vector(2.4329, 97.2223, 0)), False)
sketch11.addGeometry(Part.LineSegment(App.Vector(2.4329, 97.2223, 0), App.Vector(2.3829, 93.5502, 0)), False)
sketch11.addConstraint(Sketcher.Constraint("Coincident", 0, 2, 1, 1))
sketch11.addConstraint(Sketcher.Constraint("Coincident", 1, 2, 2, 1))
sketch11.addConstraint(Sketcher.Constraint("Coincident", 2, 2, 3, 1))
sketch11.addConstraint(Sketcher.Constraint("Coincident", 3, 2, 4, 1))
sketch11.addConstraint(Sketcher.Constraint("Coincident", 4, 2, 5, 1))
sketch11.addConstraint(Sketcher.Constraint("Coincident", 5, 2, 6, 1))
sketch11.addConstraint(Sketcher.Constraint("Coincident", 6, 2, 7, 1))
sketch11.addConstraint(Sketcher.Constraint("Coincident", 7, 2, 8, 1))
sketch11.addConstraint(Sketcher.Constraint("Coincident", 8, 2, 9, 1))
sketch11.addConstraint(Sketcher.Constraint("Coincident", 9, 2, 10, 1))
sketch11.addConstraint(Sketcher.Constraint("Coincident", 10, 2, 11, 1))
sketch11.addConstraint(Sketcher.Constraint("Coincident", 11, 2, 0, 1))
sketch11.addConstraint(Sketcher.Constraint("Coincident", 12, 2, 13, 1))
sketch11.addConstraint(Sketcher.Constraint("Coincident", 13, 2, 14, 1))
sketch11.addConstraint(Sketcher.Constraint("Coincident", 14, 2, 15, 1))
sketch11.addConstraint(Sketcher.Constraint("Coincident", 15, 2, 16, 1))
sketch11.addConstraint(Sketcher.Constraint("Coincident", 16, 2, 17, 1))
sketch11.addConstraint(Sketcher.Constraint("Coincident", 17, 2, 12, 1))
sketch11.addConstraint(Sketcher.Constraint("Coincident", 18, 2, 19, 1))
sketch11.addConstraint(Sketcher.Constraint("Coincident", 19, 2, 20, 1))
sketch11.addConstraint(Sketcher.Constraint("Coincident", 20, 2, 21, 1))
sketch11.addConstraint(Sketcher.Constraint("Coincident", 21, 2, 22, 1))
sketch11.addConstraint(Sketcher.Constraint("Coincident", 22, 2, 23, 1))
sketch11.addConstraint(Sketcher.Constraint("Coincident", 23, 2, 18, 1))
sketch11.addConstraint(Sketcher.Constraint("Vertical", 2))
sketch11.addConstraint(Sketcher.Constraint("Vertical", 4))
sketch11.addConstraint(Sketcher.Constraint("Coincident", 5, 3, 1, 3))
sketch11.addConstraint(Sketcher.Constraint("Coincident", 9, 3, 1, 3))
sketch11.addConstraint(Sketcher.Constraint("PointOnObject", 1, 3, -2))
sketch11.addConstraint(Sketcher.Constraint("PointOnObject", 3, 3, -2))
sketch11.addConstraint(Sketcher.Constraint("Radius", 1, Q("2 mm")))
sketch11.addConstraint(Sketcher.Constraint("Radius", 3, Q("2 mm")))
sketch11.addConstraint(Sketcher.Constraint("Radius", 5, Q("2 mm")))
sketch11.addConstraint(Sketcher.Constraint("Radius", 7, Q("2 mm")))
sketch11.addConstraint(Sketcher.Constraint("Radius", 9, Q("2 mm")))
sketch11.addConstraint(Sketcher.Constraint("Radius", 11, Q("2 mm")))
sketch11.addConstraint(Sketcher.Constraint("DistanceY", 1, 3, 3, 3, Q("0.7425 in")))
sketch11.addConstraint(Sketcher.Constraint("DistanceX", 7, 3, -1, 1, Q("0.22 in")))
sketch11.addConstraint(Sketcher.Constraint("DistanceX", -1, 1, 11, 3, Q("0.22 in")))
sketch11.addConstraint(Sketcher.Constraint("DistanceX", 4, 2, 0, 2, Q("0.11 in")))
sketch11.addConstraint(Sketcher.Constraint("DistanceX", 8, 2, 11, 2, Q("0.22 in")))
sketch11.addConstraint(Sketcher.Constraint("DistanceY", 15, 2, 3, 2, Q("0.13 in")))
sketch11.addConstraint(Sketcher.Constraint("DistanceY", 15, 2, 2, 2, Q("0.13 in")))
sketch11.addConstraint(Sketcher.Constraint("DistanceY", 21, 2, 2, 2, Q("0.13 in")))
sketch11.addConstraint(Sketcher.Constraint("DistanceY", -1, 1, 7, 3, Q("3.025 in")))
sketch11.addConstraint(Sketcher.Constraint("DistanceY", -1, 1, 11, 3, Q("3.025 in")))
sketch11.addConstraint(Sketcher.Constraint("DistanceY", 12, 2, 13, 2, Q("0.074 in")))
sketch11.addConstraint(Sketcher.Constraint("DistanceY", 16, 2, 15, 2, Q("0.074 in")))
sketch11.addConstraint(Sketcher.Constraint("DistanceY", 18, 2, 13, 2, Q("0.074 in")))
sketch11.addConstraint(Sketcher.Constraint("DistanceY", 20, 2, 2, 2, Q("0.204 in")))
sketch11.addConstraint(Sketcher.Constraint("DistanceY", 18, 2, 23, 2, Q("0.074 in")))
sketch11.addConstraint(Sketcher.Constraint("DistanceY", 2, 1, 2, 2, Q("15.3954 mm")))
sketch11.addConstraint(Sketcher.Constraint("DistanceY", -1, 1, 7, 2, Q("3.0598 in")))
sketch11.addConstraint(Sketcher.Constraint("DistanceY", -1, 1, 10, 2, Q("3.0598 in")))
sketch11.addConstraint(Sketcher.Constraint("DistanceY", -1, 1, 12, 2, Q("3.6091 in")))
sketch11.addConstraint(Sketcher.Constraint("DistanceY", 5, 2, 1, 3, Q("0.0348 in")))
sketch11.addConstraint(Sketcher.Constraint("DistanceX", 12, 2, 1, 2, Q("0.2574 in")))
sketch11.addConstraint(Sketcher.Constraint("DistanceX", 15, 2, 3, 2, Q("0.1826 in")))
sketch11.addConstraint(Sketcher.Constraint("DistanceX", 16, 2, 14, 2, Q("0.2504 in")))
sketch11.addConstraint(Sketcher.Constraint("DistanceY", 16, 2, 14, 2, Q("0.0034 in")))
sketch11.addConstraint(Sketcher.Constraint("DistanceX", 17, 2, 13, 2, Q("0.2504 in")))
sketch11.addConstraint(Sketcher.Constraint("DistanceY", 17, 2, 13, 2, Q("0.0034 in")))
sketch11.addConstraint(Sketcher.Constraint("DistanceX", 4, 2, 18, 2, Q("0.2574 in")))
sketch11.addConstraint(Sketcher.Constraint("DistanceY", 19, 2, 13, 2, Q("0.0034 in")))
sketch11.addConstraint(Sketcher.Constraint("DistanceX", 2, 2, 21, 2, Q("0.1826 in")))
sketch11.addConstraint(Sketcher.Constraint("DistanceX", 13, 2, 22, 2, Q("0.1896 in")))
sketch11.addConstraint(Sketcher.Constraint("DistanceX", 14, 2, 23, 2, Q("0.1896 in")))
sketch11.addConstraint(Sketcher.Constraint("DistanceX", 23, 2, 19, 2, Q("0.2504 in")))
sketch11.addConstraint(Sketcher.Constraint("Distance", 0, Q("6.587 mm")))
sketch11.addConstraint(Sketcher.Constraint("Distance", 6, Q("6.587 mm")))
sketch11.addConstraint(Sketcher.Constraint("Distance", 10, Q("6.5871 mm")))
sketch11.addConstraint(Sketcher.Constraint("Distance", 12, Q("3.6724 mm")))
sketch11.addConstraint(Sketcher.Constraint("Distance", 14, Q("3.6724 mm")))
sketch11.addConstraint(Sketcher.Constraint("Distance", 15, Q("3.6724 mm")))
sketch11.addConstraint(Sketcher.Constraint("Distance", 20, Q("3.6724 mm")))
sketch11.addConstraint(Sketcher.Constraint("Distance", 22, Q("3.6724 mm")))
pocket8 = body.newObject("PartDesign::Pocket", "Pocket007")
pocket8.Profile = sketch11
pocket8.Length = 1
doc.recompute()

mirrored3 = body.newObject("PartDesign::Mirrored", "Mirrored002")
mirrored3.Originals = [pocket8]
mirrored3.MirrorPlane = (doc.getObject("XZ_Plane"), [""])
body.Tip = mirrored3

sketch12 = body.newObject("Sketcher::SketchObject", "Sketch011")
sketch12.AttachmentSupport = (doc.getObject("XY_Plane"), [""])
sketch12.MapMode = "FlatFace"
sketch12.AttachmentOffset = App.Placement(App.Vector(0, 0, 2.5 * 25.4), App.Rotation())
sketch12.addGeometry(Part.Circle(App.Vector(6.8171, 8.9526, 0), App.Vector(0, 0, 1), 1.524), False)
sketch12.addGeometry(Part.Circle(App.Vector(-6.8171, 8.9526, 0), App.Vector(0, 0, 1), 1.524), False)
sketch12.addGeometry(Part.Circle(App.Vector(-6.8171, -8.9526, 0), App.Vector(0, 0, 1), 1.524), False)
sketch12.addGeometry(Part.Circle(App.Vector(6.8171, -8.9526, 0), App.Vector(0, 0, 1), 1.524), False)
sketch12.addConstraint(Sketcher.Constraint("Equal", 0, 1))
sketch12.addConstraint(Sketcher.Constraint("Equal", 1, 2))
sketch12.addConstraint(Sketcher.Constraint("Equal", 2, 3))
sketch12.addConstraint(Sketcher.Constraint("Symmetric", 0, 3, 2, 3, -1, 1))
sketch12.addConstraint(Sketcher.Constraint("Symmetric", 1, 3, 3, 3, -1, 1))
sketch12.addConstraint(Sketcher.Constraint("Symmetric", 0, 3, 1, 3, -2))
sketch12.addConstraint(Sketcher.Constraint("Diameter", 0, Q("0.12 in")))
sketch12.addConstraint(Sketcher.Constraint("DistanceX", -1, 1, 0, 3, Q("0.2684 in")))
sketch12.addConstraint(Sketcher.Constraint("DistanceY", -1, 1, 0, 3, Q("8.9526 mm")))
pocket9 = body.newObject("PartDesign::Pocket", "Pocket008")
pocket9.Profile = sketch12
pocket9.Length = Q("0.25 in")
pocket9.Reversed = True

sketch13 = body.newObject("Sketcher::SketchObject", "Sketch012")
sketch13.AttachmentSupport = (doc.getObject("XY_Plane"), [""])
sketch13.MapMode = "FlatFace"
sketch13.AttachmentOffset = App.Placement(App.Vector(0, 0, 1.3 * 25.4), App.Rotation())
sketch13.addGeometry(Part.LineSegment(App.Vector(-7.747, -4.572, 0), App.Vector(-7.747, 4.572, 0)), False)
sketch13.addGeometry(Part.ArcOfCircle(Part.Circle(App.Vector(-4.572, 4.572, 0), App.Vector(0, 0, 1), 3.175), math.radians(90), math.radians(180)), False)
sketch13.addGeometry(Part.LineSegment(App.Vector(-4.572, 7.747, 0), App.Vector(4.572, 7.747, 0)), False)
sketch13.addGeometry(Part.ArcOfCircle(Part.Circle(App.Vector(4.572, 4.572, 0), App.Vector(0, 0, 1), 3.175), math.radians(0), math.radians(90)), False)
sketch13.addGeometry(Part.LineSegment(App.Vector(7.747, 4.572, 0), App.Vector(7.747, -4.572, 0)), False)
sketch13.addGeometry(Part.ArcOfCircle(Part.Circle(App.Vector(4.572, -4.572, 0), App.Vector(0, 0, 1), 3.175), math.radians(-90), math.radians(0)), False)
sketch13.addGeometry(Part.LineSegment(App.Vector(4.572, -7.747, 0), App.Vector(-4.572, -7.747, 0)), False)
sketch13.addGeometry(Part.ArcOfCircle(Part.Circle(App.Vector(-4.572, -4.572, 0), App.Vector(0, 0, 1), 3.175), math.radians(180), math.radians(270)), False)
sketch13.addConstraint(Sketcher.Constraint("Tangent", 0, 2, 1, 2))
sketch13.addConstraint(Sketcher.Constraint("Tangent", 1, 1, 2, 1))
sketch13.addConstraint(Sketcher.Constraint("Tangent", 2, 2, 3, 2))
sketch13.addConstraint(Sketcher.Constraint("Tangent", 3, 1, 4, 1))
sketch13.addConstraint(Sketcher.Constraint("Tangent", 4, 2, 5, 2))
sketch13.addConstraint(Sketcher.Constraint("Tangent", 5, 1, 6, 1))
sketch13.addConstraint(Sketcher.Constraint("Tangent", 6, 2, 7, 2))
sketch13.addConstraint(Sketcher.Constraint("Tangent", 7, 1, 0, 1))
sketch13.addConstraint(Sketcher.Constraint("Vertical", 0))
sketch13.addConstraint(Sketcher.Constraint("Horizontal", 2))
sketch13.addConstraint(Sketcher.Constraint("Vertical", 4))
sketch13.addConstraint(Sketcher.Constraint("Horizontal", 6))
sketch13.addConstraint(Sketcher.Constraint("Equal", 1, 3))
sketch13.addConstraint(Sketcher.Constraint("Equal", 3, 5))
sketch13.addConstraint(Sketcher.Constraint("Equal", 5, 7))
sketch13.addConstraint(Sketcher.Constraint("Symmetric", 1, 3, 5, 3, -1, 1))
sketch13.addConstraint(Sketcher.Constraint("Equal", 6, 0))
sketch13.addConstraint(Sketcher.Constraint("Radius", 1, Q("0.125 in")))
sketch13.addConstraint(Sketcher.Constraint("DistanceX", 2, 1, 2, 2, Q("0.36 in")))
pocket10 = body.newObject("PartDesign::Pocket", "Pocket009")
pocket10.Profile = sketch13
pocket10.Length = Q("1.2 in")
pocket10.Reversed = True

doc.recompute()
